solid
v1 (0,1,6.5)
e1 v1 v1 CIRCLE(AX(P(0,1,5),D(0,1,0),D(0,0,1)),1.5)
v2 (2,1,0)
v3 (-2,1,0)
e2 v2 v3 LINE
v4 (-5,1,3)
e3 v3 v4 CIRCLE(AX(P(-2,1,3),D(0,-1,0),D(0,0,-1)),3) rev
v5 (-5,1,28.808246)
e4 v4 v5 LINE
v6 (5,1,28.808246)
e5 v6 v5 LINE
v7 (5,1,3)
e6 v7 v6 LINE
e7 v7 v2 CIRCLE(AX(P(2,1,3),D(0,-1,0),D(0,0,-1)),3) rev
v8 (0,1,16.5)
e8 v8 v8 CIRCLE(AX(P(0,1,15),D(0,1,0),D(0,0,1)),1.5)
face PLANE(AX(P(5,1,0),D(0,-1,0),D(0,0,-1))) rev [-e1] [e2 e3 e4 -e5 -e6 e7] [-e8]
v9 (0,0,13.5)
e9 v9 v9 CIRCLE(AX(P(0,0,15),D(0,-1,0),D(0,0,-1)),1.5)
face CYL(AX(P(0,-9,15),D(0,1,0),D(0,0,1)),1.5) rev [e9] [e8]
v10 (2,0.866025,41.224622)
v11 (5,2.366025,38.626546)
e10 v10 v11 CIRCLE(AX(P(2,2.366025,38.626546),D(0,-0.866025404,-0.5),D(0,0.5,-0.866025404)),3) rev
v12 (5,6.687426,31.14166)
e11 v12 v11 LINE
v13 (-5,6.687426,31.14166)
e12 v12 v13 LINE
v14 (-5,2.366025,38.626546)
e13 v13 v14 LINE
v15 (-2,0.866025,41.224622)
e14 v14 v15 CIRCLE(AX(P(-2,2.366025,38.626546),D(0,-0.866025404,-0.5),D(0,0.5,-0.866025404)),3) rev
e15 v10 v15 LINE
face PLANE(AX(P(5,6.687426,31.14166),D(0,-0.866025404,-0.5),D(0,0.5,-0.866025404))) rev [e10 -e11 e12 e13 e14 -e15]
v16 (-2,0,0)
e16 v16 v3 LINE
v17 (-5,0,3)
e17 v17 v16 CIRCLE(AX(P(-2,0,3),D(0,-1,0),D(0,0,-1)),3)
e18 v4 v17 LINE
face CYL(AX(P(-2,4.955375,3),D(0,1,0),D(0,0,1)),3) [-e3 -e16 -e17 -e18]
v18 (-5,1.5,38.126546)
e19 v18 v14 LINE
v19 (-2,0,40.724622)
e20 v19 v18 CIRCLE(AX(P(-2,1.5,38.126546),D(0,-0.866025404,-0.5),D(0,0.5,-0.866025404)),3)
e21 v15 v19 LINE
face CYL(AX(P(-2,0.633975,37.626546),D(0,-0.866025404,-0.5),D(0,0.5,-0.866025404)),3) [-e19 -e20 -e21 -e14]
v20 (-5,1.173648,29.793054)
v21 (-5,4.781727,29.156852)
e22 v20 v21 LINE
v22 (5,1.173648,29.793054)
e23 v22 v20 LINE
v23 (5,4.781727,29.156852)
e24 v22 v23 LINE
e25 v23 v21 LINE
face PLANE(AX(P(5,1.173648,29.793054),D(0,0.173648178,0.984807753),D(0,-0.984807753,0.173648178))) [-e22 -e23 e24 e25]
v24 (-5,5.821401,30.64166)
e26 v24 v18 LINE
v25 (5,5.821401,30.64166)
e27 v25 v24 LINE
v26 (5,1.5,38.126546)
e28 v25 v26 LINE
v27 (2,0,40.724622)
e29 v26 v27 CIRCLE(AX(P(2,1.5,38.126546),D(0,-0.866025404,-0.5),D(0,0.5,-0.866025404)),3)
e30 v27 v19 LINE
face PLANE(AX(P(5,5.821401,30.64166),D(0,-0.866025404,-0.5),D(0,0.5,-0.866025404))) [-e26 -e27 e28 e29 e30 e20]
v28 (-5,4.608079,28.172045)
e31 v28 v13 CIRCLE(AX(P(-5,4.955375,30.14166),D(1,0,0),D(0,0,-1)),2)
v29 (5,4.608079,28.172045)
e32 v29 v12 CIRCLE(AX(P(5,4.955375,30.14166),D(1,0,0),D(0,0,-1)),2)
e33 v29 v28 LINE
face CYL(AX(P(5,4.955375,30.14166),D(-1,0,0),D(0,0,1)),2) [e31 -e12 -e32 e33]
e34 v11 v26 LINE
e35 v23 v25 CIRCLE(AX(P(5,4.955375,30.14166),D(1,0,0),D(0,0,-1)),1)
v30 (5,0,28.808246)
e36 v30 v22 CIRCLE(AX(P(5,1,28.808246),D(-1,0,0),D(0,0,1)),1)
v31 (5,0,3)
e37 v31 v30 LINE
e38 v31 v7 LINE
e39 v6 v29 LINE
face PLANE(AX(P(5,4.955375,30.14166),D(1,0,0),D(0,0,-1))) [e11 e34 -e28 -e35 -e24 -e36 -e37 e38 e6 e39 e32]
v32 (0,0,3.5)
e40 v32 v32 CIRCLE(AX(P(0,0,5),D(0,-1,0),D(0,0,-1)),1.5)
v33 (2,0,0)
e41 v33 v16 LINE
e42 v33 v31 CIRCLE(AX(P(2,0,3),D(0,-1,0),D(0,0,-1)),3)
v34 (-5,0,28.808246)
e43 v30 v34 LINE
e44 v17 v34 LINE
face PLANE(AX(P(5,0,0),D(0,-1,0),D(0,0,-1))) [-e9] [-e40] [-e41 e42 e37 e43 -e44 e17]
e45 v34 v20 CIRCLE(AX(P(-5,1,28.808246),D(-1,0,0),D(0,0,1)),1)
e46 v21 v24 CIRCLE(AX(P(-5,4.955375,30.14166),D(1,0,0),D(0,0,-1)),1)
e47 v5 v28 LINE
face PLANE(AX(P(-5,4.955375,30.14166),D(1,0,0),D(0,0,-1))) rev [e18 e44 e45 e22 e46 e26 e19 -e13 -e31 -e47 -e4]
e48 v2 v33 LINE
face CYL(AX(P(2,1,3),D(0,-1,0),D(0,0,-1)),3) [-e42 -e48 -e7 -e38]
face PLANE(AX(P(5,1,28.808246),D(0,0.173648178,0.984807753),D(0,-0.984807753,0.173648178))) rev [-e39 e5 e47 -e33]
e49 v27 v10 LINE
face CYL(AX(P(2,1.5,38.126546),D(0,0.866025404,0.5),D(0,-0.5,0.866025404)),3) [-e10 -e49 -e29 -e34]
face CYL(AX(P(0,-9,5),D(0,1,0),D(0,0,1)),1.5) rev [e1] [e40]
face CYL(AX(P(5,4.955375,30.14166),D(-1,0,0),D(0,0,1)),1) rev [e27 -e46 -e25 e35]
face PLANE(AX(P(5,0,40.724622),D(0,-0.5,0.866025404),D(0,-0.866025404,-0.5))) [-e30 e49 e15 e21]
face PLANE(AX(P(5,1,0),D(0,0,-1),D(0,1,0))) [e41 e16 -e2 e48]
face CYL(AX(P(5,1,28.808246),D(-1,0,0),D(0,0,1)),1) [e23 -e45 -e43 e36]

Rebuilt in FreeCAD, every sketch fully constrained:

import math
import FreeCAD as App
import Part
import Sketcher
from FreeCAD import Vector
Q = App.Units.Quantity


def edges_at(feature, points):
    """Names of the edges that pass closest to the given points."""
    edges = feature.Shape.Edges
    near = lambda p: min(range(len(edges)), key=lambda i: edges[i].distToShape(Part.Vertex(*p))[0])
    return sorted({f"Edge{near(p) + 1}" for p in points})

doc = App.newDocument("Part")
body = doc.addObject("PartDesign::Body", "Body")

# Sketch on YZ plane
sketch1 = doc.addObject("Sketcher::SketchObject", "Sketch")
body.addObject(sketch1)
sketch1.AttachmentSupport = (doc.YZ_Plane, [""])
sketch1.MapMode = "FlatFace"
sketch1.addGeometry(Part.LineSegment(Vector(0, 28.808246, 0), Vector(0, 0, 0)), False)
sketch1.addGeometry(Part.LineSegment(Vector(0, 0, 0), Vector(1, 0, 0)), False)
sketch1.addGeometry(Part.LineSegment(Vector(1, 0, 0), Vector(1, 28.808246, 0)), False)
sketch1.addGeometry(Part.LineSegment(Vector(1, 28.808246, 0), Vector(4.608079, 28.172045, 0)), False)
sketch1.addGeometry(Part.ArcOfCircle(Part.Circle(Vector(4.955375, 30.14166, 0), Vector(0, 0, 1), 2), math.radians(-100), math.radians(30)), False)
sketch1.addGeometry(Part.LineSegment(Vector(6.687426, 31.14166, 0), Vector(0.866025, 41.224622, 0)), False)
sketch1.addGeometry(Part.LineSegment(Vector(0.866025, 41.224622, 0), Vector(0, 40.724622, 0)), False)
sketch1.addGeometry(Part.LineSegment(Vector(0, 40.724622, 0), Vector(5.821401, 30.64166, 0)), False)
sketch1.addGeometry(Part.ArcOfCircle(Part.Circle(Vector(4.955375, 30.14166, 0), Vector(0, 0, 1), 1), math.radians(-100), math.radians(30)), False)
sketch1.addGeometry(Part.LineSegment(Vector(4.781727, 29.156852, 0), Vector(1.173648, 29.793054, 0)), False)
sketch1.addGeometry(Part.ArcOfCircle(Part.Circle(Vector(1, 28.808246, 0), Vector(0, 0, 1), 1), math.radians(80), math.radians(180)), False)
sketch1.addConstraint(Sketcher.Constraint("Coincident", 0, 2, 1, 1))
sketch1.addConstraint(Sketcher.Constraint("Coincident", 1, 2, 2, 1))
sketch1.addConstraint(Sketcher.Constraint("Coincident", 2, 2, 3, 1))
sketch1.addConstraint(Sketcher.Constraint("Tangent", 3, 2, 4, 1))
sketch1.addConstraint(Sketcher.Constraint("Tangent", 4, 2, 5, 1))
sketch1.addConstraint(Sketcher.Constraint("Coincident", 5, 2, 6, 1))
sketch1.addConstraint(Sketcher.Constraint("Coincident", 6, 2, 7, 1))
sketch1.addConstraint(Sketcher.Constraint("Tangent", 7, 2, 8, 2))
sketch1.addConstraint(Sketcher.Constraint("Tangent", 8, 1, 9, 1))
sketch1.addConstraint(Sketcher.Constraint("Tangent", 9, 2, 10, 1))
sketch1.addConstraint(Sketcher.Constraint("Tangent", 10, 2, 0, 1))
sketch1.addConstraint(Sketcher.Constraint("Vertical", 0))
sketch1.addConstraint(Sketcher.Constraint("Horizontal", 1))
sketch1.addConstraint(Sketcher.Constraint("Vertical", 2))
sketch1.addConstraint(Sketcher.Constraint("Coincident", 0, 2, -1, 1))
sketch1.addConstraint(Sketcher.Constraint("Coincident", 8, 3, 4, 3))
sketch1.addConstraint(Sketcher.Constraint("Coincident", 2, 2, 10, 3))
sketch1.addConstraint(Sketcher.Constraint("Equal", 8, 10))
sketch1.addConstraint(Sketcher.Constraint("PointOnObject", 6, 2, -2))
sketch1.addConstraint(Sketcher.Constraint("Perpendicular", 5, 6))
sketch1.addConstraint(Sketcher.Constraint("Perpendicular", 6, 7))
sketch1.addConstraint(Sketcher.Constraint("Parallel", 3, 9))
sketch1.addConstraint(Sketcher.Constraint("Radius", 4, 2.0))
sketch1.addConstraint(Sketcher.Constraint("Angle", 3, Q("-10 deg")))
sketch1.addConstraint(Sketcher.Constraint("Angle", 5, Q("120 deg")))
sketch1.addConstraint(Sketcher.Constraint("Distance", 5, 11.642802))
sketch1.addConstraint(Sketcher.Constraint("DistanceY", 0, 2, 0, 1, 28.808246))
pad1 = doc.addObject("PartDesign::Pad", "Pad")
body.addObject(pad1)
pad1.Profile = sketch1
pad1.Length = 10
pad1.Midplane = True
doc.recompute()

fillet = doc.addObject("PartDesign::Fillet", "Fillet")
body.addObject(fillet)
fillet.Base = (pad1, edges_at(pad1, [
    (-5, 0.433, 40.975),
    (5, 0.5, 0),
    (5, 0.433, 40.975),
    (-5, 0.5, 0),
]))
fillet.Radius = 3

# Sketch on XZ plane
sketch2 = doc.addObject("Sketcher::SketchObject", "Sketch001")
body.addObject(sketch2)
sketch2.AttachmentSupport = (doc.XZ_Plane, [""])
sketch2.MapMode = "FlatFace"
sketch2.AttachmentOffset = App.Placement(Vector(0, 0, -1), App.Rotation())
sketch2.addGeometry(Part.Circle(Vector(0, 5, 0), Vector(0, 0, 1), 1.5), False)
sketch2.addGeometry(Part.Circle(Vector(0, 15, 0), Vector(0, 0, 1), 1.5), False)
sketch2.addConstraint(Sketcher.Constraint("Equal", 0, 1))
sketch2.addConstraint(Sketcher.Constraint("PointOnObject", 0, 3, -2))
sketch2.addConstraint(Sketcher.Constraint("PointOnObject", 1, 3, -2))
sketch2.addConstraint(Sketcher.Constraint("Diameter", 0, 3.0))
sketch2.addConstraint(Sketcher.Constraint("DistanceY", -1, 1, 0, 3, 5.0))
sketch2.addConstraint(Sketcher.Constraint("DistanceY", -1, 1, 1, 3, 15.0))
pocket1 = doc.addObject("PartDesign::Pocket", "Pocket")
body.addObject(pocket1)
pocket1.Profile = sketch2
pocket1.Length = 10
pocket1.Reversed = True

doc.recompute()
